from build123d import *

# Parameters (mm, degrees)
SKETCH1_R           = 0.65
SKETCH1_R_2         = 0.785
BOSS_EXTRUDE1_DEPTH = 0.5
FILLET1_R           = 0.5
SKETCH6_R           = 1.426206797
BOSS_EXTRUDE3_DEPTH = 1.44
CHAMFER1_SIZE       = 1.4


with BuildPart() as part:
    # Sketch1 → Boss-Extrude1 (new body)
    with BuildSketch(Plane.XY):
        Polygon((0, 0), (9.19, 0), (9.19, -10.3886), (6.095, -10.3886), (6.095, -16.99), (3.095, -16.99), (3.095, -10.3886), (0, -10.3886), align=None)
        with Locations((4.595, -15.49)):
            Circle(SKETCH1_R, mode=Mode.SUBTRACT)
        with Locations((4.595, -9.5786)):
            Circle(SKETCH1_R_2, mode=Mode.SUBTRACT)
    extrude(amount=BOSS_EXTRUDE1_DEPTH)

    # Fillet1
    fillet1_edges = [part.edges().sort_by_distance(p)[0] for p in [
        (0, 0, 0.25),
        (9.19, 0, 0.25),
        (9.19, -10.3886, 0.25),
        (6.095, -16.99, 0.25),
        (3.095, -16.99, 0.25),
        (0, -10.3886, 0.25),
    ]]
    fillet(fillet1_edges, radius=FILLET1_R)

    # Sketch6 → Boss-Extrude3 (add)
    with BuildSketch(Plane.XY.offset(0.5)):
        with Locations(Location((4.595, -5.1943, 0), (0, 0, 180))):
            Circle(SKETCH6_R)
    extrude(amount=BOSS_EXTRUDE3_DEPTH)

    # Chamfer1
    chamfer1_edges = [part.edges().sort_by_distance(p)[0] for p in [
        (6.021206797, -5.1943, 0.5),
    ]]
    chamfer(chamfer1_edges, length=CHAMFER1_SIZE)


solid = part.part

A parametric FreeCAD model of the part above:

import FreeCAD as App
import Part
import Sketcher
from FreeCAD import Vector


def edges_at(feature, points):
    """Names of the edges that pass closest to the given points."""
    edges = feature.Shape.Edges
    near = lambda p: min(range(len(edges)), key=lambda i: edges[i].distToShape(Part.Vertex(*p))[0])
    return sorted({f"Edge{near(p) + 1}" for p in points})

doc = App.newDocument("Part")
body = doc.addObject("PartDesign::Body", "Body")

sketch1 = body.newObject("Sketcher::SketchObject", "Sketch")
sketch1.AttachmentSupport = (doc.getObject("XY_Plane"), [""])
sketch1.MapMode = "FlatFace"
sketch1.addGeometry(Part.LineSegment(Vector(9.2, 0, 0), Vector(0, 0, 0)), False)
sketch1.addGeometry(Part.LineSegment(Vector(0, 0, 0), Vector(0, -10.4, 0)), False)
sketch1.addGeometry(Part.LineSegment(Vector(0, -10.4, 0), Vector(3.1, -10.4, 0)), False)
sketch1.addGeometry(Part.LineSegment(Vector(3.1, -10.4, 0), Vector(3.1, -17, 0)), False)
sketch1.addGeometry(Part.LineSegment(Vector(3.1, -17, 0), Vector(6.1, -17, 0)), False)
sketch1.addGeometry(Part.LineSegment(Vector(6.1, -17, 0), Vector(6.1, -10.4, 0)), False)
sketch1.addGeometry(Part.LineSegment(Vector(6.1, -10.4, 0), Vector(9.2, -10.4, 0)), False)
sketch1.addGeometry(Part.LineSegment(Vector(9.2, -10.4, 0), Vector(9.2, 0, 0)), False)
sketch1.addGeometry(Part.Circle(Vector(4.6, -15.5, 0), Vector(0, 0, 1), 0.7), False)
sketch1.addGeometry(Part.Circle(Vector(4.6, -9.6, 0), Vector(0, 0, 1), 0.8), False)
sketch1.addConstraint(Sketcher.Constraint("Coincident", 0, 2, 1, 1))
sketch1.addConstraint(Sketcher.Constraint("Coincident", 1, 2, 2, 1))
sketch1.addConstraint(Sketcher.Constraint("Coincident", 2, 2, 3, 1))
sketch1.addConstraint(Sketcher.Constraint("Coincident", 3, 2, 4, 1))
sketch1.addConstraint(Sketcher.Constraint("Coincident", 4, 2, 5, 1))
sketch1.addConstraint(Sketcher.Constraint("Coincident", 5, 2, 6, 1))
sketch1.addConstraint(Sketcher.Constraint("Coincident", 6, 2, 7, 1))
sketch1.addConstraint(Sketcher.Constraint("Coincident", 7, 2, 0, 1))
sketch1.addConstraint(Sketcher.Constraint("Horizontal", 0))
sketch1.addConstraint(Sketcher.Constraint("Vertical", 1))
sketch1.addConstraint(Sketcher.Constraint("Horizontal", 2))
sketch1.addConstraint(Sketcher.Constraint("Vertical", 3))
sketch1.addConstraint(Sketcher.Constraint("Horizontal", 4))
sketch1.addConstraint(Sketcher.Constraint("Vertical", 5))
sketch1.addConstraint(Sketcher.Constraint("Horizontal", 6))
sketch1.addConstraint(Sketcher.Constraint("Vertical", 7))
sketch1.addConstraint(Sketcher.Constraint("Coincident", 0, 2, -1, 1))
sketch1.addConstraint(Sketcher.Constraint("Horizontal", 2, 2, 5, 2))
sketch1.addConstraint(Sketcher.Constraint("Vertical", 8, 3, 9, 3))
sketch1.addConstraint(Sketcher.Constraint("Equal", 2, 6))
sketch1.addConstraint(Sketcher.Constraint("Diameter", 8, 1.3))
sketch1.addConstraint(Sketcher.Constraint("Diameter", 9, 1.57))
sketch1.addConstraint(Sketcher.Constraint("DistanceX", 4, 1, 4, 2, 3.0))
sketch1.addConstraint(Sketcher.Constraint("DistanceX", 0, 2, 0, 1, 9.19))
sketch1.addConstraint(Sketcher.Constraint("DistanceX", 2, 2, 9, 3, 1.5))
sketch1.addConstraint(Sketcher.Constraint("DistanceY", 3, 2, 8, 3, 1.5))
sketch1.addConstraint(Sketcher.Constraint("DistanceY", 8, 3, -1, 1, 15.49))
sketch1.addConstraint(Sketcher.Constraint("DistanceY", 1, 2, 9, 3, 0.81))
sketch1.addConstraint(Sketcher.Constraint("DistanceY", 1, 2, 1, 1, 10.3886))
pad1 = body.newObject("PartDesign::Pad", "Pad")
pad1.Profile = sketch1
pad1.Length = 0.5
doc.recompute()

fillet = body.newObject("PartDesign::Fillet", "Fillet")
fillet.Base = (pad1, edges_at(pad1, [
    (0, 0, 0.25),
    (9.19, 0, 0.25),
    (9.19, -10.389, 0.25),
    (6.095, -16.99, 0.25),
    (3.095, -16.99, 0.25),
    (0, -10.389, 0.25),
]))
fillet.Radius = 0.5

sketch2 = body.newObject("Sketcher::SketchObject", "Sketch001")
sketch2.AttachmentSupport = (doc.getObject("XY_Plane"), [""])
sketch2.MapMode = "FlatFace"
sketch2.AttachmentOffset = App.Placement(Vector(0, 0, 0.5), App.Rotation())
sketch2.addGeometry(Part.Circle(Vector(4.6, -5.2, 0), Vector(0, 0, 1), 1.4), False)
sketch2.addConstraint(Sketcher.Constraint("Diameter", 0, 2.852414))
sketch2.addConstraint(Sketcher.Constraint("DistanceX", -1, 1, 0, 3, 4.595))
sketch2.addConstraint(Sketcher.Constraint("DistanceY", 0, 3, -1, 1, 5.1943))
pad2 = body.newObject("PartDesign::Pad", "Pad001")
pad2.Profile = sketch2
pad2.Length = 1.44
doc.recompute()

chamfer = body.newObject("PartDesign::Chamfer", "Chamfer")
chamfer.Base = (pad2, edges_at(pad2, [(6.021, -5.194, 0.5)]))
chamfer.Size = 1.4

doc.recompute()
